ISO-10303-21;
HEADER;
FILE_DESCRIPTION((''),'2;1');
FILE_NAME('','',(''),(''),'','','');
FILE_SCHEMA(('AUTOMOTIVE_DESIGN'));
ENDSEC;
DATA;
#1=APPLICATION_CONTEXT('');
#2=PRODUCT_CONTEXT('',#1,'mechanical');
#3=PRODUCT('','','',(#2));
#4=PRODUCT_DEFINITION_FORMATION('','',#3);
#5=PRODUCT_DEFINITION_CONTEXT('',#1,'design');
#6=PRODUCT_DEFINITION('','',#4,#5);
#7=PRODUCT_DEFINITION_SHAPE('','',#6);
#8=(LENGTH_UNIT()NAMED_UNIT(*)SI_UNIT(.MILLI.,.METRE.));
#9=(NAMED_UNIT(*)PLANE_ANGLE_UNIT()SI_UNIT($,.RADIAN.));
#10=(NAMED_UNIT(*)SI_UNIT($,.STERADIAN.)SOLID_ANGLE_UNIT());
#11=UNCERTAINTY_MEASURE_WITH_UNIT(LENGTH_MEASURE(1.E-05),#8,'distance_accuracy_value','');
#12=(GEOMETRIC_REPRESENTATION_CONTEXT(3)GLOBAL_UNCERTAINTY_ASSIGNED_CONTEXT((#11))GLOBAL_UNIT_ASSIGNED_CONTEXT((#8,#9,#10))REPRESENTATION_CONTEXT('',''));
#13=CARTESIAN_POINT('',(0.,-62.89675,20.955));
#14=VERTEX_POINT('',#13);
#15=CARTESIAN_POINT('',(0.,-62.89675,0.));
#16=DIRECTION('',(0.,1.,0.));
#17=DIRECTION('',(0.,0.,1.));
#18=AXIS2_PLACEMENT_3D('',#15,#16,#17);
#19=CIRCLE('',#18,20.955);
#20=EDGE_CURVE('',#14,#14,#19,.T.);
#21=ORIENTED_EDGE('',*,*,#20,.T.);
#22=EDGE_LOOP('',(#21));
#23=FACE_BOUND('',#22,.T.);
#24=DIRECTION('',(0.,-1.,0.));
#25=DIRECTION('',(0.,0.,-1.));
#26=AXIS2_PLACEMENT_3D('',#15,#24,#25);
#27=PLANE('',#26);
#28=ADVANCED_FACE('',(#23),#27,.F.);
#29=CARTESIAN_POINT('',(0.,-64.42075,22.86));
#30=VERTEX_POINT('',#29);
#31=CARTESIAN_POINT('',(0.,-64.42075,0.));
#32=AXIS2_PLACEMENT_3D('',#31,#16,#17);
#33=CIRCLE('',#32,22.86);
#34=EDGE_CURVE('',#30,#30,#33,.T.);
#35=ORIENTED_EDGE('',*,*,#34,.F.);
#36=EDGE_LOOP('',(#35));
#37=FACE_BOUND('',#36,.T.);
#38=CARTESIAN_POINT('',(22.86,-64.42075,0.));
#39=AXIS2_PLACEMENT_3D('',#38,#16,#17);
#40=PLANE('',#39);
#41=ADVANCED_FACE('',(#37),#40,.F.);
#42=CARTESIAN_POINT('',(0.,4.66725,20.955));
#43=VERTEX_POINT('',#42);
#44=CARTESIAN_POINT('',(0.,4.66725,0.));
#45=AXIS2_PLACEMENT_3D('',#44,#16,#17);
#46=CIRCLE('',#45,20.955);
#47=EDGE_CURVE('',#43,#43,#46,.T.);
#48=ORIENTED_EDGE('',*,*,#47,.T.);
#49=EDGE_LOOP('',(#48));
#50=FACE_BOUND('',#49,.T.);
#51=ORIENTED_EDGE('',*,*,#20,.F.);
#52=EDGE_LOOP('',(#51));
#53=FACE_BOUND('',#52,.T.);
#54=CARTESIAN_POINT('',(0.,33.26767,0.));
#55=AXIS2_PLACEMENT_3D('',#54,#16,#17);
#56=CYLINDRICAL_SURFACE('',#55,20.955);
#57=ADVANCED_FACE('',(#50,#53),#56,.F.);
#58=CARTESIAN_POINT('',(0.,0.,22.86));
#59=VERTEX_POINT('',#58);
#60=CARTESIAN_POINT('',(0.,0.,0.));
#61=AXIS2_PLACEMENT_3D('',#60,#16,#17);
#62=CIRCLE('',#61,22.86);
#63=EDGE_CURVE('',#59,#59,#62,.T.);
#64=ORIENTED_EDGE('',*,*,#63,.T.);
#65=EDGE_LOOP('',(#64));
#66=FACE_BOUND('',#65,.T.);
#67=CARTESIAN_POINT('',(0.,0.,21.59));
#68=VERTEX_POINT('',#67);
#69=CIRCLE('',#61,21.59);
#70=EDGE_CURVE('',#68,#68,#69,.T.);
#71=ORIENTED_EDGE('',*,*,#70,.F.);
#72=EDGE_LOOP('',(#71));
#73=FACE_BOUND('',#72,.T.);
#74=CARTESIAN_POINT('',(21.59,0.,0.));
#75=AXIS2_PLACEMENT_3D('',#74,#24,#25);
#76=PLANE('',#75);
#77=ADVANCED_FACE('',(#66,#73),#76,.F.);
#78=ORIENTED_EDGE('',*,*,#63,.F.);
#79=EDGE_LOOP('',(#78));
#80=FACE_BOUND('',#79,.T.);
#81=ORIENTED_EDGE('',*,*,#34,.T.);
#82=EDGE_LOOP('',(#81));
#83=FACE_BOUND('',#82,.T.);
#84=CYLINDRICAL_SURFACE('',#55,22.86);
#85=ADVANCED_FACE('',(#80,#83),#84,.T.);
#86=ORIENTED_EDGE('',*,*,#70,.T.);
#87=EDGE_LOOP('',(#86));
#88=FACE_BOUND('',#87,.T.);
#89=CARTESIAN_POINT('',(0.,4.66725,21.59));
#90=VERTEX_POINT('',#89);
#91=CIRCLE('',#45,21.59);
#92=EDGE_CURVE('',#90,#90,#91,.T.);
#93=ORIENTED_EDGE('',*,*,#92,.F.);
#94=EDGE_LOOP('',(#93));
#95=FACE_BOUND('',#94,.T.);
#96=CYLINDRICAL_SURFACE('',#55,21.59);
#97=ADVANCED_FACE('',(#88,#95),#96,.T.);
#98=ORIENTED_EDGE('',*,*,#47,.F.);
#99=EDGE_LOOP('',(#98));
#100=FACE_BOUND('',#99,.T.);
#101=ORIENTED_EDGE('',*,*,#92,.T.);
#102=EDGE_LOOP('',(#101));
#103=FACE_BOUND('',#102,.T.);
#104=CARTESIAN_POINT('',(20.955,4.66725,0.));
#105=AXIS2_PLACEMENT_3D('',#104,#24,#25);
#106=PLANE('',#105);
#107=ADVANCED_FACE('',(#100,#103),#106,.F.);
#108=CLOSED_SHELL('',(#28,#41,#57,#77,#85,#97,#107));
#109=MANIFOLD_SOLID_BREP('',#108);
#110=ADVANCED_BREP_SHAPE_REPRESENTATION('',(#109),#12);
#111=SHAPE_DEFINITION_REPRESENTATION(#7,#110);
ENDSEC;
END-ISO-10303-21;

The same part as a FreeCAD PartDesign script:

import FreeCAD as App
import Part
import Sketcher
from FreeCAD import Vector
Q = App.Units.Quantity

doc = App.newDocument("Part")
body = doc.addObject("PartDesign::Body", "Body")

# Sketch on XY plane
sketch1 = body.newObject("Sketcher::SketchObject", "Sketch")
sketch1.AttachmentSupport = (doc.getObject("XY_Plane"), [""])
sketch1.MapMode = "FlatFace"
sketch1.addGeometry([
    Part.LineSegment(Vector(22.9, -64.4, 0), Vector(22.9, 0, 0)),  # 0
    Part.LineSegment(Vector(22.9, 0, 0), Vector(21.6, 0, 0)),  # 1
    Part.LineSegment(Vector(21.6, 0, 0), Vector(21.6, 2.3, 0)),  # 2
    Part.LineSegment(Vector(21.6, 2.3, 0), Vector(22.2, 2.3, 0)),  # 3
    Part.LineSegment(Vector(22.2, 2.3, 0), Vector(22.2, 4.7, 0)),  # 4
    Part.LineSegment(Vector(22.2, 4.7, 0), Vector(21, 4.7, 0)),  # 5
    Part.LineSegment(Vector(21, 4.7, 0), Vector(21, -62.9, 0)),  # 6
    Part.LineSegment(Vector(21, -62.9, 0), Vector(0, -62.9, 0)),  # 7
    Part.LineSegment(Vector(0, -62.9, 0), Vector(0, -64.4, 0)),  # 8
    Part.LineSegment(Vector(0, -64.4, 0), Vector(22.9, -64.4, 0)),  # 9
], False)
sketch1.addConstraint([
    Sketcher.Constraint("Coincident", 0, 2, 1, 1),
    Sketcher.Constraint("Coincident", 1, 2, 2, 1),
    Sketcher.Constraint("Coincident", 2, 2, 3, 1),
    Sketcher.Constraint("Coincident", 3, 2, 4, 1),
    Sketcher.Constraint("Coincident", 4, 2, 5, 1),
    Sketcher.Constraint("Coincident", 5, 2, 6, 1),
    Sketcher.Constraint("Coincident", 6, 2, 7, 1),
    Sketcher.Constraint("Coincident", 7, 2, 8, 1),
    Sketcher.Constraint("Coincident", 8, 2, 9, 1),
    Sketcher.Constraint("Coincident", 9, 2, 0, 1),
    Sketcher.Constraint("Vertical", 0),
    Sketcher.Constraint("Horizontal", 1),
    Sketcher.Constraint("Vertical", 2),
    Sketcher.Constraint("Horizontal", 3),
    Sketcher.Constraint("Vertical", 4),
    Sketcher.Constraint("Horizontal", 5),
    Sketcher.Constraint("Vertical", 6),
    Sketcher.Constraint("Horizontal", 7),
    Sketcher.Constraint("Vertical", 8),
    Sketcher.Constraint("Horizontal", 9),
    Sketcher.Constraint("PointOnObject", 0, 2, -1),
    Sketcher.Constraint("PointOnObject", 7, 2, -2),
    Sketcher.Constraint("Equal", 1, 5),
    Sketcher.Constraint("DistanceX", 9, 1, 9, 2, Q("0.9 in")),
    Sketcher.Constraint("DistanceX", 1, 2, 1, 1, Q("0.05 in")),
    Sketcher.Constraint("DistanceY", 2, 1, 2, 2, Q("0.09 in")),
    Sketcher.Constraint("DistanceY", 6, 2, 6, 1, Q("2.66 in")),
    Sketcher.Constraint("DistanceY", 8, 2, 8, 1, Q("0.06 in")),
    Sketcher.Constraint("DistanceX", 3, 1, 3, 2, Q("0.025 in")),
    Sketcher.Constraint("DistanceY", 4, 1, 4, 2, Q("0.09375 in")),
])
revolution = body.newObject("PartDesign::Revolution", "Revolution")
revolution.Profile = sketch1
revolution.ReferenceAxis = (sketch1, ["V_Axis"])
revolution.Angle = 360

# Sketch on XZ plane
sketch2 = body.newObject("Sketcher::SketchObject", "Sketch001")
sketch2.AttachmentSupport = (doc.getObject("XZ_Plane"), [""])
sketch2.MapMode = "FlatFace"
sketch2.AttachmentOffset = App.Placement(Vector(0, 0, -4.66725), App.Rotation())
sketch2.addGeometry([
    Part.Circle(Vector(0, 0, 0), Vector(0, 0, 1), 22),
    Part.Circle(Vector(0, 0, 0), Vector(0, 0, 1), 22),
], False)
sketch2.addConstraint([
    Sketcher.Constraint("Coincident", 0, 3, -1, 1),
    Sketcher.Constraint("Coincident", 1, 3, -1, 1),
    Sketcher.Constraint("Diameter", 1, Q("1.7 in")),
    Sketcher.Constraint("Diameter", 0, Q("1.75 in")),
])
pocket1 = body.newObject("PartDesign::Pocket", "Pocket")
pocket1.Profile = sketch2
pocket1.Length = Q("0.09375 in")
pocket1.Reversed = True

doc.recompute()
